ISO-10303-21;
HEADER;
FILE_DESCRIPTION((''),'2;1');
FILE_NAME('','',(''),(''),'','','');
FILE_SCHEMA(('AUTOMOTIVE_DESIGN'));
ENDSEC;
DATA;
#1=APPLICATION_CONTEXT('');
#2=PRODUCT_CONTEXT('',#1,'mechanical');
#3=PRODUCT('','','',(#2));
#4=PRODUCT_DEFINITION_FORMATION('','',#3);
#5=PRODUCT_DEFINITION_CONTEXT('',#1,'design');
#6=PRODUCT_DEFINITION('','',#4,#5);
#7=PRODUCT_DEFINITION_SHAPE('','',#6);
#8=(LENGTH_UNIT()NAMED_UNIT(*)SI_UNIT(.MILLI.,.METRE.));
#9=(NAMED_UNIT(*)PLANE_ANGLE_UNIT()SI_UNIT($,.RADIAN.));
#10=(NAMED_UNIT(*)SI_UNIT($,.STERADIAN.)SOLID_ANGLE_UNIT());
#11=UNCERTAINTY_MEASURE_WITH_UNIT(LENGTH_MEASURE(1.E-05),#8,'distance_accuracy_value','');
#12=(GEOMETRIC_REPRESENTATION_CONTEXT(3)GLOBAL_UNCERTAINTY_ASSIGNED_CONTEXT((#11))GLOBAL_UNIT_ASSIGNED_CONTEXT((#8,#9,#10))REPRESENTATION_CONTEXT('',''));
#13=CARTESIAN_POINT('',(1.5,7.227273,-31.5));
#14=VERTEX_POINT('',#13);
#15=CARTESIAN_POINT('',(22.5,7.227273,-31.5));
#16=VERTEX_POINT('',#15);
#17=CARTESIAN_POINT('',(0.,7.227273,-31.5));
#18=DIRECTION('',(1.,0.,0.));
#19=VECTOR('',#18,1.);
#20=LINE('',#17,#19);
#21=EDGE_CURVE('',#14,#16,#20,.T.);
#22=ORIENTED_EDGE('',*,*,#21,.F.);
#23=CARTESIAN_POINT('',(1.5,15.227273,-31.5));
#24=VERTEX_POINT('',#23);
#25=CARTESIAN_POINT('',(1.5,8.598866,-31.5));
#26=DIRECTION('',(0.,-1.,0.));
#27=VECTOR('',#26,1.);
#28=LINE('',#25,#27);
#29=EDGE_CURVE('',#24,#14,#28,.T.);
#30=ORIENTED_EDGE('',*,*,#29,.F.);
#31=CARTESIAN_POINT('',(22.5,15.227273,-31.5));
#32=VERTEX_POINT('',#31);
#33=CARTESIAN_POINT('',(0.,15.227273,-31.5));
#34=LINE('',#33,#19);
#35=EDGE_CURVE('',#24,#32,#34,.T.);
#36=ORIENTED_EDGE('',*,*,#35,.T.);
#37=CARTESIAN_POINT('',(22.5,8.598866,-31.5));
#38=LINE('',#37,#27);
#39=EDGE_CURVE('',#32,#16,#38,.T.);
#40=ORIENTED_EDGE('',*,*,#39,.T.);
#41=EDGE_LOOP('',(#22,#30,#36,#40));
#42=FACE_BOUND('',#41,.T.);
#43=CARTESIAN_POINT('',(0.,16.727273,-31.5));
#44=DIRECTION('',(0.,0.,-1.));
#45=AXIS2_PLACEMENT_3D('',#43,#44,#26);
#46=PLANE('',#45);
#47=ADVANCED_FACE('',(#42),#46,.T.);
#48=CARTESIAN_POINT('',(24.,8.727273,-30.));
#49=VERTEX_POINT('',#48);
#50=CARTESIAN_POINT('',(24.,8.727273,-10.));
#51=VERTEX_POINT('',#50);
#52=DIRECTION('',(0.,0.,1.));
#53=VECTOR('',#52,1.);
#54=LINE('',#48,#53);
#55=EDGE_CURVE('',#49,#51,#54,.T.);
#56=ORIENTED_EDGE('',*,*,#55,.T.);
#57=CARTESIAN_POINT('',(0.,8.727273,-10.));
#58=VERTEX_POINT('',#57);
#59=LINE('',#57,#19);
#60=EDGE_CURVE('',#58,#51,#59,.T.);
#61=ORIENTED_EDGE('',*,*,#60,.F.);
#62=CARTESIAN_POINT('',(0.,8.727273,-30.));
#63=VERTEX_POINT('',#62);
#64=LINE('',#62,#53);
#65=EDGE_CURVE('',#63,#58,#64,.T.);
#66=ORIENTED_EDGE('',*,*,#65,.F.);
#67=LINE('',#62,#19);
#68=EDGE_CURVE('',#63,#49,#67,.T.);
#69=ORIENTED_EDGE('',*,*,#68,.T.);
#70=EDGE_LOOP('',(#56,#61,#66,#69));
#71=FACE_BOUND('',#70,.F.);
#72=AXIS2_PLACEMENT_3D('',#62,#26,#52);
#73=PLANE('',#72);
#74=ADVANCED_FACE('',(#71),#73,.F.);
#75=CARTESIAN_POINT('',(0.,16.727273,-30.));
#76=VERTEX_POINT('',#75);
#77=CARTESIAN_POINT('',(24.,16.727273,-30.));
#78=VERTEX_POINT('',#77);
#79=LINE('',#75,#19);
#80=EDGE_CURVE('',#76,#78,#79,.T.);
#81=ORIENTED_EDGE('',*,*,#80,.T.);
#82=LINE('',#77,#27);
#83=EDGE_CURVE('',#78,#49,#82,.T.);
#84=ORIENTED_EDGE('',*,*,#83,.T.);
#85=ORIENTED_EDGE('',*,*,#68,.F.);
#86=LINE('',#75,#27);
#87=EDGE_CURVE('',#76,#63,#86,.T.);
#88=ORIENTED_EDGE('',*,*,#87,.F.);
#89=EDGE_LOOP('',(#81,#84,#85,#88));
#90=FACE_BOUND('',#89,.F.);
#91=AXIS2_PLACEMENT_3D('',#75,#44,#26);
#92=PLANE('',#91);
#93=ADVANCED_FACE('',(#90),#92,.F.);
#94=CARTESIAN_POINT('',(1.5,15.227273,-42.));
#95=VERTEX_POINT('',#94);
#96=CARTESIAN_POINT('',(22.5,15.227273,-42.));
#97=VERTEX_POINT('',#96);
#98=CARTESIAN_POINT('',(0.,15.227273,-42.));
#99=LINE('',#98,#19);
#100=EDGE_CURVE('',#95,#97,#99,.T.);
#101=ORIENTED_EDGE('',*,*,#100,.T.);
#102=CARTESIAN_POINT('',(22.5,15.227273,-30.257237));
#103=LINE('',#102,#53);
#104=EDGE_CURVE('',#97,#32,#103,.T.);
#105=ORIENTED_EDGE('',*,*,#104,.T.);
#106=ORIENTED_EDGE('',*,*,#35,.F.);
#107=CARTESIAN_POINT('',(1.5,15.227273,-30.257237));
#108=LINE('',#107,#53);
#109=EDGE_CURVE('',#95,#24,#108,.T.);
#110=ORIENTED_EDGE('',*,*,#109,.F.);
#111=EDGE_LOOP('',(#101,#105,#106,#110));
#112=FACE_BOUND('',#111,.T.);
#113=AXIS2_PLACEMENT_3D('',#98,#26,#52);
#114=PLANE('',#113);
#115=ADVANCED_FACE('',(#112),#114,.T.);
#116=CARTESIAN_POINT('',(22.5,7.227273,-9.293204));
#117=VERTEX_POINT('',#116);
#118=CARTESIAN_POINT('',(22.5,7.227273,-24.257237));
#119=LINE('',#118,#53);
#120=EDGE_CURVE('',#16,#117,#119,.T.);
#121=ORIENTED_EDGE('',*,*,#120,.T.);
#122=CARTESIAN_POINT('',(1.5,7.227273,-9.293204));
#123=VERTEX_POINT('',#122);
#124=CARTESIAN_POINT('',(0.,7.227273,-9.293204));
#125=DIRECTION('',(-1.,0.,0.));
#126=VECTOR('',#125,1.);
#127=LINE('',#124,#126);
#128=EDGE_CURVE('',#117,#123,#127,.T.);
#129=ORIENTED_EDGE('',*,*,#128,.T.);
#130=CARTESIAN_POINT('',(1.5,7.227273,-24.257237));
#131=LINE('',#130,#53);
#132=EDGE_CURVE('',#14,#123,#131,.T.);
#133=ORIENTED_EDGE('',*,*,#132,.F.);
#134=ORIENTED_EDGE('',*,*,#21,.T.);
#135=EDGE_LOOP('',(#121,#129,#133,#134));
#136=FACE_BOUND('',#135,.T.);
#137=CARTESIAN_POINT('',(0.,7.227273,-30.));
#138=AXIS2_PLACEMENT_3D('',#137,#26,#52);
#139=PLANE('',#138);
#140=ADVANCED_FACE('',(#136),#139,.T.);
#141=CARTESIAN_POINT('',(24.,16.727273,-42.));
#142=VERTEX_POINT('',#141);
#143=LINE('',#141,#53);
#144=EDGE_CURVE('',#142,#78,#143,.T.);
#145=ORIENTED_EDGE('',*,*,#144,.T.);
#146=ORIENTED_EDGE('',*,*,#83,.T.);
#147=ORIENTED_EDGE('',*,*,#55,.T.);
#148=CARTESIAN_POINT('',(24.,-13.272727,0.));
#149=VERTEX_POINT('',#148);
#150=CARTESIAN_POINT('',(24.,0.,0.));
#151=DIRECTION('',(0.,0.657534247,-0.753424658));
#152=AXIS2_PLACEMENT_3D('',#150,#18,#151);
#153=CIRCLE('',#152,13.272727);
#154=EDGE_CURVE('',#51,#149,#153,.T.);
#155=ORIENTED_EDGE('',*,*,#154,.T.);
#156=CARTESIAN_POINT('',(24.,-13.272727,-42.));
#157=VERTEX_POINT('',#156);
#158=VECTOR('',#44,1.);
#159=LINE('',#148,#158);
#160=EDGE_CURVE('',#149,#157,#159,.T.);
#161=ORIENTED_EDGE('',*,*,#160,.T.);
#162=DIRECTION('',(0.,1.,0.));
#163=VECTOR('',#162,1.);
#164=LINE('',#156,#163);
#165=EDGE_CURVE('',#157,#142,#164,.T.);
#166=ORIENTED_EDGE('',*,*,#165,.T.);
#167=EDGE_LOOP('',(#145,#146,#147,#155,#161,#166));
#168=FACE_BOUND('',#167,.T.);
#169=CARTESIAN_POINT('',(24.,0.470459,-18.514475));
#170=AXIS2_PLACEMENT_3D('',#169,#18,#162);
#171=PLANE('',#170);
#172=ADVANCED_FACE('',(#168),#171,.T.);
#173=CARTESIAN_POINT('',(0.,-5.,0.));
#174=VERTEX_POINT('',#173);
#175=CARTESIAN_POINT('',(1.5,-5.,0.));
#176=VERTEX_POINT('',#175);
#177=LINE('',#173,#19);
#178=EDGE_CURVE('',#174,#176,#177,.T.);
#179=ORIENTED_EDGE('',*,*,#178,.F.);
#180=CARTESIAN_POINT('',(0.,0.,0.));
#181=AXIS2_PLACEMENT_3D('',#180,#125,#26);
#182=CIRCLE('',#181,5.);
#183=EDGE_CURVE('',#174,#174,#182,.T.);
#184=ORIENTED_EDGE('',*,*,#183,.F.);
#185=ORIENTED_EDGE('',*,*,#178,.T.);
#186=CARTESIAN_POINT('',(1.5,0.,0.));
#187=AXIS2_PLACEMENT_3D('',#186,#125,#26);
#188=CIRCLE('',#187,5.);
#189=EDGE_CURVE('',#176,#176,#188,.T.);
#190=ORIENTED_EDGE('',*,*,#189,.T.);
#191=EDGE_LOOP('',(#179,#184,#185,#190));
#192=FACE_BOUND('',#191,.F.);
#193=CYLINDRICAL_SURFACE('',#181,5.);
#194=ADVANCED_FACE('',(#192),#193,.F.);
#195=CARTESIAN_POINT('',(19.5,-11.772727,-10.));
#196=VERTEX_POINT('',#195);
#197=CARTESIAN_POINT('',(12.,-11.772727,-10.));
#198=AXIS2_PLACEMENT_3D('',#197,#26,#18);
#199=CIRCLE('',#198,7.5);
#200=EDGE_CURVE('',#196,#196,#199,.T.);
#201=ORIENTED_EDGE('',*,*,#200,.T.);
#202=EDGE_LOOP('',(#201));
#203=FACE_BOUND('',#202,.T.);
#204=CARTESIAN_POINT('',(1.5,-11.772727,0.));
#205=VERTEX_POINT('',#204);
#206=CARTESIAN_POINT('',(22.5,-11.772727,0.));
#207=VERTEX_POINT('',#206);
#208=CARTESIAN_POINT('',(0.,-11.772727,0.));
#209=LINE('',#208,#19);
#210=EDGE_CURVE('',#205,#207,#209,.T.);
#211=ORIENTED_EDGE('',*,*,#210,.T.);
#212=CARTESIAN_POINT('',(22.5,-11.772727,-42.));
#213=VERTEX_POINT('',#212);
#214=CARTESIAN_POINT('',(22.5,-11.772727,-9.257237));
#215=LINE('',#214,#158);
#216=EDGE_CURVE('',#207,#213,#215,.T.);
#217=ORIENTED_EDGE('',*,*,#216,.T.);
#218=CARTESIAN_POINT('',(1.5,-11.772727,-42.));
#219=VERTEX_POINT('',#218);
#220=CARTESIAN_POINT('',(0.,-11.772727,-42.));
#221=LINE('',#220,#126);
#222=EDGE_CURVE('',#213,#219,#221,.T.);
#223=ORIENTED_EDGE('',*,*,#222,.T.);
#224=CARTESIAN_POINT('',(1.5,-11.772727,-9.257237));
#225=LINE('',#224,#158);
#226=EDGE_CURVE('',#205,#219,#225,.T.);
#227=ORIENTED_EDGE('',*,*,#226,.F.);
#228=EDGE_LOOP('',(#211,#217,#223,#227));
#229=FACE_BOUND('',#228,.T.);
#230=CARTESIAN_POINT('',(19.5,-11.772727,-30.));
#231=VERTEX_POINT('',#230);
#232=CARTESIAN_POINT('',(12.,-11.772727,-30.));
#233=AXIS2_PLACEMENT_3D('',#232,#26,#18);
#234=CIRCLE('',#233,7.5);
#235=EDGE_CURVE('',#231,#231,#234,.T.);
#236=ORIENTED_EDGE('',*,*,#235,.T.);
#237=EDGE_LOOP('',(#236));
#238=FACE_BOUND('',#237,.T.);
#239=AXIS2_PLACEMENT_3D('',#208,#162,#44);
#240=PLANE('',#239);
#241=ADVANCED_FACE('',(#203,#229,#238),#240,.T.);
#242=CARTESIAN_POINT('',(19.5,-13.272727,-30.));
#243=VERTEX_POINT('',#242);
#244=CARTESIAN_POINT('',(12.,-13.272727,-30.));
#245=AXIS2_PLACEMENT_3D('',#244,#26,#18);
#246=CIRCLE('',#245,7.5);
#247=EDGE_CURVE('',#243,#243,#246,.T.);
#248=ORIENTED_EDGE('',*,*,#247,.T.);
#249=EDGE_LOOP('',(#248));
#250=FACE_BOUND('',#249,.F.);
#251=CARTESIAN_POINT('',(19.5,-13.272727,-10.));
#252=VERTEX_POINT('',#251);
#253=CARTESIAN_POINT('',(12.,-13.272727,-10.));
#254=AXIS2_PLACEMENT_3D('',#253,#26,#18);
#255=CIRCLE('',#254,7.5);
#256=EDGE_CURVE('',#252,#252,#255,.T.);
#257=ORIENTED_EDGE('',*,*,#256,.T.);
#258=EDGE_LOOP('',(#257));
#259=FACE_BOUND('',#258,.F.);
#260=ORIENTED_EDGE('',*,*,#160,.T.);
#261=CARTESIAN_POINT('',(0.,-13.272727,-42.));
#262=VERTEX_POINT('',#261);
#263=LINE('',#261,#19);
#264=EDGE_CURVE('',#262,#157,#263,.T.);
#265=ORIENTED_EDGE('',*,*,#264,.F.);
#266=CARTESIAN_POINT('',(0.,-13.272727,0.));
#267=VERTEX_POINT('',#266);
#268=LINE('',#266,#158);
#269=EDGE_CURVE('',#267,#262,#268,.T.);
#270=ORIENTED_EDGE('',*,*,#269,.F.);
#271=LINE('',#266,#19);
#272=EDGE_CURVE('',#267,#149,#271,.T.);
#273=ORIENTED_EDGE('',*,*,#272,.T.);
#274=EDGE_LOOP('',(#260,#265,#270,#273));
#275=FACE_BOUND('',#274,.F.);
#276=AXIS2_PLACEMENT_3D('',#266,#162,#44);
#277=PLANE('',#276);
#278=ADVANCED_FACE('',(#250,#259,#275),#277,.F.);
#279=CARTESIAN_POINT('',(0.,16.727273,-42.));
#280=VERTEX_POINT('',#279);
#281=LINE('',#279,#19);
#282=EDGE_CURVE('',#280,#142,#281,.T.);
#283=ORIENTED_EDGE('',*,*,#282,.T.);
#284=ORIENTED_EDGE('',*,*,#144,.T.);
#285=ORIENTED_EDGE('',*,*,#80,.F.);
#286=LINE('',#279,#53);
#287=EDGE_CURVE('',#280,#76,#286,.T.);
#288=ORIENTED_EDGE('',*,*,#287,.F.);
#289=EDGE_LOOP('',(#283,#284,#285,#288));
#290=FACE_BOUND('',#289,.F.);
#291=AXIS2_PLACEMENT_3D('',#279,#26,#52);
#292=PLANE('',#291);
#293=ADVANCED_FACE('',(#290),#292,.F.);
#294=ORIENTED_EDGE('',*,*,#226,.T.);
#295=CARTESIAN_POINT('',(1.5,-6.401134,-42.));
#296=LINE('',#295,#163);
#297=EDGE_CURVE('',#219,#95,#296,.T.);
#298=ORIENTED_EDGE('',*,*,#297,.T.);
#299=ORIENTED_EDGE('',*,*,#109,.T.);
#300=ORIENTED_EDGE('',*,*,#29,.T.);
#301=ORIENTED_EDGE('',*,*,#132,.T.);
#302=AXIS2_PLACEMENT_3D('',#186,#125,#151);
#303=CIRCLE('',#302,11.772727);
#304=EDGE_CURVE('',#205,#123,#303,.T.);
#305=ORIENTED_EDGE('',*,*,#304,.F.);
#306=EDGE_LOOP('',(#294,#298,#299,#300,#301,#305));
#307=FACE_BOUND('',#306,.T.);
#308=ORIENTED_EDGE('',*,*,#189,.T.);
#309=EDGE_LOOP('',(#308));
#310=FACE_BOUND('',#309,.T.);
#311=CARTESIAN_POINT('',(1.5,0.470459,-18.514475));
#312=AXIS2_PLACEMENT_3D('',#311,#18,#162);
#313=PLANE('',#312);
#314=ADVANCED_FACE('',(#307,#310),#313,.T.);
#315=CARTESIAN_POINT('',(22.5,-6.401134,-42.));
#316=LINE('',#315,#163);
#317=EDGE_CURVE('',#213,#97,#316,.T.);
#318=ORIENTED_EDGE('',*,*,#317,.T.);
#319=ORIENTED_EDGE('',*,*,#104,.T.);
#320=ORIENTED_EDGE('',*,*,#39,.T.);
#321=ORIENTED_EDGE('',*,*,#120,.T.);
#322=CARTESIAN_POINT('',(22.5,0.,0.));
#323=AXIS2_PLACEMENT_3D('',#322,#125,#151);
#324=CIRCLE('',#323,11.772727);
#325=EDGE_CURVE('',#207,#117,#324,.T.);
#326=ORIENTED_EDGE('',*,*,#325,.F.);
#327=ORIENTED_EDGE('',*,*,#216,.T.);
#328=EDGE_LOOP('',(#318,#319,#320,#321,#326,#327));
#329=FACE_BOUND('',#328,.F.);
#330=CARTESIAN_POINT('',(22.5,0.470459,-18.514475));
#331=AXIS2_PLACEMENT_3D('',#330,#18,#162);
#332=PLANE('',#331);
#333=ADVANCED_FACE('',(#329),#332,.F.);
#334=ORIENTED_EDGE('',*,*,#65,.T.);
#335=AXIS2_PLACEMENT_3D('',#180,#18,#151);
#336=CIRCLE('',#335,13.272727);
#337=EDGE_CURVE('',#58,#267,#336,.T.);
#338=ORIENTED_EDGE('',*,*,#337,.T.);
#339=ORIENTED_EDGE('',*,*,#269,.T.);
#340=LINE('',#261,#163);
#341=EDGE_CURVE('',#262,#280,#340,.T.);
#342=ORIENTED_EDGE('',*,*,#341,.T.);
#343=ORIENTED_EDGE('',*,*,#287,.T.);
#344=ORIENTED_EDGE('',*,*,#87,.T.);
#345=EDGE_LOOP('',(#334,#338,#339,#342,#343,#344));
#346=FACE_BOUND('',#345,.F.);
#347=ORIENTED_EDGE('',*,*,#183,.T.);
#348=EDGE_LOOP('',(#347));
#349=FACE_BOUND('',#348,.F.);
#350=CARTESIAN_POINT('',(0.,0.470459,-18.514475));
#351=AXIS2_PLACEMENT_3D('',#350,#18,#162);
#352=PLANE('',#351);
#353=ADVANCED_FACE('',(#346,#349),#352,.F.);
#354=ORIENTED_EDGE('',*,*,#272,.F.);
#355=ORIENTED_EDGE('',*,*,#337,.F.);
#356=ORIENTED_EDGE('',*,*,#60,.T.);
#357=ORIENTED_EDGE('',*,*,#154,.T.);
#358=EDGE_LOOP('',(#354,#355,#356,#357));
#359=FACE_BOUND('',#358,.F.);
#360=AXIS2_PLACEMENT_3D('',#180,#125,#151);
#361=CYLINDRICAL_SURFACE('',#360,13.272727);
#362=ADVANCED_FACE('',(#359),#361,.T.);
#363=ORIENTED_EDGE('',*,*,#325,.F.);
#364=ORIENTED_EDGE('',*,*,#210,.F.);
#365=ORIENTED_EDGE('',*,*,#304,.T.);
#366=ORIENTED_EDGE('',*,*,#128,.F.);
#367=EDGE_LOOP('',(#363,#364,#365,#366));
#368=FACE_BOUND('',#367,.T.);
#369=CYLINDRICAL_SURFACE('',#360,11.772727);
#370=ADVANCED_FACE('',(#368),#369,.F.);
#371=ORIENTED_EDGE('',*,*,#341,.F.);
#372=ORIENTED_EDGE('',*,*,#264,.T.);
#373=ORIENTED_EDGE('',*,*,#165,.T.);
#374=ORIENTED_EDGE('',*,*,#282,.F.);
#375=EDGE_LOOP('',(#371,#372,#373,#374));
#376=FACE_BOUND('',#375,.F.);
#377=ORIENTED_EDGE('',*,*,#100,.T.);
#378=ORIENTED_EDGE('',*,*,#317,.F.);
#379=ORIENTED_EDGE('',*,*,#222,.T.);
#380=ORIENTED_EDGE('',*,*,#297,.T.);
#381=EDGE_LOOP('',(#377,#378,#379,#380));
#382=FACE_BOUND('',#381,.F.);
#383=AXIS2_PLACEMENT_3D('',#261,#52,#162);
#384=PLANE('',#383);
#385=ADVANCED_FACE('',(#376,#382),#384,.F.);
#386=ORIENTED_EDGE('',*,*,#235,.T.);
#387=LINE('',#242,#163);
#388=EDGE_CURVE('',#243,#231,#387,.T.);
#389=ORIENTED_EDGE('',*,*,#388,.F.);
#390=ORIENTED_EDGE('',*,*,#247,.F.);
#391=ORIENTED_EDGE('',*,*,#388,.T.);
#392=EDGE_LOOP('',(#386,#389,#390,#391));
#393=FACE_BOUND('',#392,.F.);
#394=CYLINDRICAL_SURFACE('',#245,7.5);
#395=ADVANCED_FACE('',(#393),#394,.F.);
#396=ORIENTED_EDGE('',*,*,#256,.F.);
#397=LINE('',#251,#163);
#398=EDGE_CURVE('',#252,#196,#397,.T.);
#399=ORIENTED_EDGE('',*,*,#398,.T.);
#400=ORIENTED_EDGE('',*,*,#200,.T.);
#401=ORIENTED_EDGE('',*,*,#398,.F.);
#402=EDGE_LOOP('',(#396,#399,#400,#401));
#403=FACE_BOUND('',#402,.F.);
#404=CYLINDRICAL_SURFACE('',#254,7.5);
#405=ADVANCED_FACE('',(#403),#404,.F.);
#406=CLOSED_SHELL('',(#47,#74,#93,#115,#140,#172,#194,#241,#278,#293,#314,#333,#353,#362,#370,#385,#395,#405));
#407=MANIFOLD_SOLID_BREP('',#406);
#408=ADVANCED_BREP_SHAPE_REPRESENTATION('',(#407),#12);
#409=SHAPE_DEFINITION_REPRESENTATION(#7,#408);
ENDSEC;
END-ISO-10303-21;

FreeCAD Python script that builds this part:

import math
import FreeCAD as App
import Part
import Sketcher

V = App.Vector
Q = App.Units.Quantity


def faces_at(feature, points):
    """Names of the faces that lie closest to the given points."""
    faces = feature.Shape.Faces
    near = lambda p: min(range(len(faces)), key=lambda i: faces[i].distToShape(Part.Vertex(*p))[0])
    return sorted({f"Face{near(p) + 1}" for p in points})

doc = App.newDocument("Part")
body = doc.addObject("PartDesign::Body", "Body")

sketch1 = doc.addObject("Sketcher::SketchObject", "Sketch")
body.addObject(sketch1)
sketch1.AttachmentSupport = (doc.YZ_Plane, [""])
sketch1.MapMode = "FlatFace"
sketch1.addGeometry([
    Part.LineSegment(V(9, -30, 0), V(9, -10, 0)),
    Part.ArcOfCircle(Part.Circle(V(0, 0, 0), V(0, 0, 1), 13), math.radians(-49), math.radians(180)),
    Part.LineSegment(V(-13, 0, 0), V(-13, -42, 0)),
    Part.LineSegment(V(-13, -42, 0), V(17, -42, 0)),
    Part.LineSegment(V(17, -42, 0), V(17, -30, 0)),
    Part.LineSegment(V(17, -30, 0), V(9, -30, 0)),
], False)
sketch1.addConstraint([
    Sketcher.Constraint("Coincident", 0, 2, 1, 1),
    Sketcher.Constraint("Tangent", 1, 2, 2, 1),
    Sketcher.Constraint("Coincident", 2, 2, 3, 1),
    Sketcher.Constraint("Coincident", 3, 2, 4, 1),
    Sketcher.Constraint("Coincident", 4, 2, 5, 1),
    Sketcher.Constraint("Coincident", 5, 2, 0, 1),
    Sketcher.Constraint("Vertical", 0),
    Sketcher.Constraint("Vertical", 2),
    Sketcher.Constraint("Horizontal", 3),
    Sketcher.Constraint("Vertical", 4),
    Sketcher.Constraint("Horizontal", 5),
    Sketcher.Constraint("Coincident", 1, 3, -1, 1),
    Sketcher.Constraint("DistanceX", 3, 1, 3, 2, Q("30 mm")),
    Sketcher.Constraint("DistanceX", 5, 2, 5, 1, Q("8 mm")),
    Sketcher.Constraint("DistanceY", 0, 1, 0, 2, Q("20 mm")),
    Sketcher.Constraint("DistanceY", 2, 2, 2, 1, Q("42 mm")),
    Sketcher.Constraint("DistanceY", 4, 1, 4, 2, Q("12 mm")),
])
pad1 = doc.addObject("PartDesign::Pad", "Pad")
body.addObject(pad1)
pad1.Profile = sketch1
pad1.Length = 24
doc.recompute()

thickness = doc.addObject("PartDesign::Thickness", "Thickness")
body.addObject(thickness)
thickness.Base = (pad1, faces_at(pad1, [(12, 1.727, -42)]))
thickness.Value = 1.5
thickness.Reversed = True
thickness.Join = "Intersection"

sketch2 = doc.addObject("Sketcher::SketchObject", "Sketch001")
body.addObject(sketch2)
sketch2.AttachmentSupport = (doc.YZ_Plane, [""])
sketch2.MapMode = "FlatFace"
sketch2.addGeometry(Part.Circle(V(0, 0, 0), V(0, 0, 1), 5), False)
sketch2.addConstraint([
    Sketcher.Constraint("Coincident", 0, 3, -1, 1),
    Sketcher.Constraint("Diameter", 0, Q("10 mm")),
])
pocket1 = doc.addObject("PartDesign::Pocket", "Pocket")
body.addObject(pocket1)
pocket1.Profile = sketch2
pocket1.Length = 5
pocket1.Reversed = True

sketch3 = doc.addObject("Sketcher::SketchObject", "Sketch002")
body.addObject(sketch3)
sketch3.AttachmentSupport = (doc.XZ_Plane, [""])
sketch3.MapMode = "FlatFace"
sketch3.AttachmentOffset = App.Placement(V(0, 0, 13.272727), App.Rotation())
sketch3.addGeometry([
    Part.Circle(V(12, -10, 0), V(0, 0, 1), 8),
    Part.Circle(V(12, -30, 0), V(0, 0, 1), 8),
], False)
sketch3.addConstraint([
    Sketcher.Constraint("Equal", 0, 1),
    Sketcher.Constraint("Vertical", 0, 3, 1, 3),
    Sketcher.Constraint("Diameter", 0, Q("15 mm")),
    Sketcher.Constraint("DistanceX", -1, 1, 0, 3, Q("12 mm")),
    Sketcher.Constraint("DistanceY", 0, 3, -1, 1, Q("10 mm")),
    Sketcher.Constraint("DistanceY", 1, 3, -1, 1, Q("30 mm")),
])
pocket2 = doc.addObject("PartDesign::Pocket", "Pocket001")
body.addObject(pocket2)
pocket2.Profile = sketch3
pocket2.Length = 5

doc.recompute()
